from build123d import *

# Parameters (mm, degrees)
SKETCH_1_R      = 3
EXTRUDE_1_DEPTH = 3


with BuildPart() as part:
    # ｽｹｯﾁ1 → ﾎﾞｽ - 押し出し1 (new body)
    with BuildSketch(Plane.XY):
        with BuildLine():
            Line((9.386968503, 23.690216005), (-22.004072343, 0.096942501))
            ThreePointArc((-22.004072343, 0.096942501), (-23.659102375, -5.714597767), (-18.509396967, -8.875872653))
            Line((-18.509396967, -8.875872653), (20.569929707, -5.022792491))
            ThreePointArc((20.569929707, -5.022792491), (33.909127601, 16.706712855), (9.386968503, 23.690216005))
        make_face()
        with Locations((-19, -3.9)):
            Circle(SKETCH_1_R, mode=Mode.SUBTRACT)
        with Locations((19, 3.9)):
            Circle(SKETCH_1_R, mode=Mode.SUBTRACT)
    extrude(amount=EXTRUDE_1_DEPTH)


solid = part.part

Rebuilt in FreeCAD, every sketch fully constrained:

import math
import FreeCAD as App
import Part
import Sketcher

doc = App.newDocument("Part")
body = doc.addObject("PartDesign::Body", "Body")

# Sketch on XY plane
sketch1 = body.newObject("Sketcher::SketchObject", "Sketch")
sketch1.AttachmentSupport = (doc.getObject("XY_Plane"), [""])
sketch1.MapMode = "FlatFace"
sketch1.addGeometry([
    Part.LineSegment(App.Vector(9.4, 23.7, 0), App.Vector(-22, 0.1, 0)),  # 0
    Part.ArcOfCircle(Part.Circle(App.Vector(-19, -3.9, 0), App.Vector(0, 0, 1), 5), math.radians(127), math.radians(276)),  # 1
    Part.LineSegment(App.Vector(-18.5, -8.9, 0), App.Vector(20.6, -5, 0)),  # 2
    Part.ArcOfCircle(Part.Circle(App.Vector(19, 10.9, 0), App.Vector(0, 0, 1), 16), math.radians(-84), math.radians(127)),  # 3
    Part.Circle(App.Vector(-19, -3.9, 0), App.Vector(0, 0, 1), 3),  # 4
    Part.Circle(App.Vector(19, 3.9, 0), App.Vector(0, 0, 1), 3),  # 5
], False)
sketch1.addConstraint([
    Sketcher.Constraint("Tangent", 0, 2, 1, 1),
    Sketcher.Constraint("Tangent", 1, 2, 2, 1),
    Sketcher.Constraint("Tangent", 2, 2, 3, 1),
    Sketcher.Constraint("Tangent", 3, 2, 0, 1),
    Sketcher.Constraint("Coincident", 4, 3, 1, 3),
    Sketcher.Constraint("Equal", 4, 5),
    Sketcher.Constraint("Symmetric", 1, 3, 5, 3, -1, 1),
    Sketcher.Constraint("Vertical", 3, 3, 5, 3),
    Sketcher.Constraint("Diameter", 4, 6.0),
    Sketcher.Constraint("Radius", 1, 5.0),
    Sketcher.Constraint("Radius", 3, 16.0),
    Sketcher.Constraint("DistanceX", 1, 3, -1, 1, 19.0),
    Sketcher.Constraint("DistanceY", 5, 3, 3, 3, 7.0),
    Sketcher.Constraint("DistanceY", 1, 3, -1, 1, 3.9),
])
pad1 = body.newObject("PartDesign::Pad", "Pad")
pad1.Profile = sketch1
pad1.Length = 3

doc.recompute()
